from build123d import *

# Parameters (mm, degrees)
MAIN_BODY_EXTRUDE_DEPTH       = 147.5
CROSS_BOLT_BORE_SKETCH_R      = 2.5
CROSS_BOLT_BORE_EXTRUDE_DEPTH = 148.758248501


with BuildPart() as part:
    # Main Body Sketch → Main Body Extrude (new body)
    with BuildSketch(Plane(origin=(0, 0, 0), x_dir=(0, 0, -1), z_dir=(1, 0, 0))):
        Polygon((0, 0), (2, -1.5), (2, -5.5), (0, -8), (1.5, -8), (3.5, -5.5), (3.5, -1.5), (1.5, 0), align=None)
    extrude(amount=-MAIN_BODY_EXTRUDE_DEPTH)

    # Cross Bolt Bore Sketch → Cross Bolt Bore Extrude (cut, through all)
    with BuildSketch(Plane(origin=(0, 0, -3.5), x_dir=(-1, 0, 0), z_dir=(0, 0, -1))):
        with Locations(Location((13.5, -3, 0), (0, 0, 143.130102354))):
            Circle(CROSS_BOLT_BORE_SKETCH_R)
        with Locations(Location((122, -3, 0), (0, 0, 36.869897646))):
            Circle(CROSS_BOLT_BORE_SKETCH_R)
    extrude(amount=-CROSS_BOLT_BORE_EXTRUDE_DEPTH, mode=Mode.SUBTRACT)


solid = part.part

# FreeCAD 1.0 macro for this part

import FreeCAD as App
import Part
import Sketcher

V = App.Vector


def add_polygon(sketch, points):
    """Adds a closed chain of lines whose ends are joined by coincident constraints."""
    first, n = sketch.GeometryCount, len(points)
    for a, b in zip(points, points[1:] + points[:1]):
        sketch.addGeometry(Part.LineSegment(App.Vector(*a, 0), App.Vector(*b, 0)), False)
    for i in range(n):
        sketch.addConstraint(Sketcher.Constraint("Coincident", first + i, 2, first + (i + 1) % n, 1))

doc = App.newDocument("Part")
body = doc.addObject("PartDesign::Body", "Body")

# Sketch on YZ plane
sketch1 = doc.addObject("Sketcher::SketchObject", "Sketch")
body.addObject(sketch1)
sketch1.AttachmentSupport = (doc.YZ_Plane, [""])
sketch1.MapMode = "FlatFace"
add_polygon(sketch1, [(0, 0), (-1.5, -2), (-5.5, -2), (-8, 0), (-8, -1.5), (-5.5, -3.5), (-1.5, -3.5), (0, -1.5)])  # lines 0-7
sketch1.addConstraint(Sketcher.Constraint("Horizontal", 1))
sketch1.addConstraint(Sketcher.Constraint("Vertical", 3))
sketch1.addConstraint(Sketcher.Constraint("Horizontal", 5))
sketch1.addConstraint(Sketcher.Constraint("Vertical", 7))
sketch1.addConstraint(Sketcher.Constraint("Coincident", 7, 2, -1, 1))
sketch1.addConstraint(Sketcher.Constraint("PointOnObject", 2, 2, -1))
sketch1.addConstraint(Sketcher.Constraint("Parallel", 2, 4))
sketch1.addConstraint(Sketcher.Constraint("Parallel", 0, 6))
sketch1.addConstraint(Sketcher.Constraint("Horizontal", 3, 2, 6, 2))
sketch1.addConstraint(Sketcher.Constraint("Vertical", 1, 2, 4, 2))
sketch1.addConstraint(Sketcher.Constraint("DistanceX", 1, 2, 1, 1, 4.0))
sketch1.addConstraint(Sketcher.Constraint("DistanceY", 3, 2, 3, 1, 1.5))
sketch1.addConstraint(Sketcher.Constraint("DistanceY", 0, 2, -1, 1, 2.0))
sketch1.addConstraint(Sketcher.Constraint("DistanceX", 2, 2, -1, 1, 8.0))
sketch1.addConstraint(Sketcher.Constraint("Distance", 0, 2.5))
pad1 = doc.addObject("PartDesign::Pad", "Pad")
body.addObject(pad1)
pad1.Profile = sketch1
pad1.Length = 147.5
pad1.Reversed = True

# Sketch on XY plane
sketch2 = doc.addObject("Sketcher::SketchObject", "Sketch001")
body.addObject(sketch2)
sketch2.AttachmentSupport = (doc.XY_Plane, [""])
sketch2.MapMode = "FlatFace"
sketch2.AttachmentOffset = App.Placement(V(0, 0, -3.5), App.Rotation())
sketch2.addGeometry(Part.Circle(V(-13.5, -3, 0), V(0, 0, 1), 2.5), False)
sketch2.addGeometry(Part.Circle(V(-122, -3, 0), V(0, 0, 1), 2.5), False)
sketch2.addConstraint(Sketcher.Constraint("Equal", 0, 1))
sketch2.addConstraint(Sketcher.Constraint("Horizontal", 0, 3, 1, 3))
sketch2.addConstraint(Sketcher.Constraint("Diameter", 0, 5.0))
sketch2.addConstraint(Sketcher.Constraint("DistanceY", 0, 3, -1, 1, 3.0))
sketch2.addConstraint(Sketcher.Constraint("DistanceX", 1, 3, -1, 1, 122.0))
sketch2.addConstraint(Sketcher.Constraint("DistanceX", 0, 3, -1, 1, 13.5))
pocket1 = doc.addObject("PartDesign::Pocket", "Pocket")
body.addObject(pocket1)
pocket1.Profile = sketch2
pocket1.Type = "ThroughAll"
pocket1.Reversed = True

doc.recompute()
